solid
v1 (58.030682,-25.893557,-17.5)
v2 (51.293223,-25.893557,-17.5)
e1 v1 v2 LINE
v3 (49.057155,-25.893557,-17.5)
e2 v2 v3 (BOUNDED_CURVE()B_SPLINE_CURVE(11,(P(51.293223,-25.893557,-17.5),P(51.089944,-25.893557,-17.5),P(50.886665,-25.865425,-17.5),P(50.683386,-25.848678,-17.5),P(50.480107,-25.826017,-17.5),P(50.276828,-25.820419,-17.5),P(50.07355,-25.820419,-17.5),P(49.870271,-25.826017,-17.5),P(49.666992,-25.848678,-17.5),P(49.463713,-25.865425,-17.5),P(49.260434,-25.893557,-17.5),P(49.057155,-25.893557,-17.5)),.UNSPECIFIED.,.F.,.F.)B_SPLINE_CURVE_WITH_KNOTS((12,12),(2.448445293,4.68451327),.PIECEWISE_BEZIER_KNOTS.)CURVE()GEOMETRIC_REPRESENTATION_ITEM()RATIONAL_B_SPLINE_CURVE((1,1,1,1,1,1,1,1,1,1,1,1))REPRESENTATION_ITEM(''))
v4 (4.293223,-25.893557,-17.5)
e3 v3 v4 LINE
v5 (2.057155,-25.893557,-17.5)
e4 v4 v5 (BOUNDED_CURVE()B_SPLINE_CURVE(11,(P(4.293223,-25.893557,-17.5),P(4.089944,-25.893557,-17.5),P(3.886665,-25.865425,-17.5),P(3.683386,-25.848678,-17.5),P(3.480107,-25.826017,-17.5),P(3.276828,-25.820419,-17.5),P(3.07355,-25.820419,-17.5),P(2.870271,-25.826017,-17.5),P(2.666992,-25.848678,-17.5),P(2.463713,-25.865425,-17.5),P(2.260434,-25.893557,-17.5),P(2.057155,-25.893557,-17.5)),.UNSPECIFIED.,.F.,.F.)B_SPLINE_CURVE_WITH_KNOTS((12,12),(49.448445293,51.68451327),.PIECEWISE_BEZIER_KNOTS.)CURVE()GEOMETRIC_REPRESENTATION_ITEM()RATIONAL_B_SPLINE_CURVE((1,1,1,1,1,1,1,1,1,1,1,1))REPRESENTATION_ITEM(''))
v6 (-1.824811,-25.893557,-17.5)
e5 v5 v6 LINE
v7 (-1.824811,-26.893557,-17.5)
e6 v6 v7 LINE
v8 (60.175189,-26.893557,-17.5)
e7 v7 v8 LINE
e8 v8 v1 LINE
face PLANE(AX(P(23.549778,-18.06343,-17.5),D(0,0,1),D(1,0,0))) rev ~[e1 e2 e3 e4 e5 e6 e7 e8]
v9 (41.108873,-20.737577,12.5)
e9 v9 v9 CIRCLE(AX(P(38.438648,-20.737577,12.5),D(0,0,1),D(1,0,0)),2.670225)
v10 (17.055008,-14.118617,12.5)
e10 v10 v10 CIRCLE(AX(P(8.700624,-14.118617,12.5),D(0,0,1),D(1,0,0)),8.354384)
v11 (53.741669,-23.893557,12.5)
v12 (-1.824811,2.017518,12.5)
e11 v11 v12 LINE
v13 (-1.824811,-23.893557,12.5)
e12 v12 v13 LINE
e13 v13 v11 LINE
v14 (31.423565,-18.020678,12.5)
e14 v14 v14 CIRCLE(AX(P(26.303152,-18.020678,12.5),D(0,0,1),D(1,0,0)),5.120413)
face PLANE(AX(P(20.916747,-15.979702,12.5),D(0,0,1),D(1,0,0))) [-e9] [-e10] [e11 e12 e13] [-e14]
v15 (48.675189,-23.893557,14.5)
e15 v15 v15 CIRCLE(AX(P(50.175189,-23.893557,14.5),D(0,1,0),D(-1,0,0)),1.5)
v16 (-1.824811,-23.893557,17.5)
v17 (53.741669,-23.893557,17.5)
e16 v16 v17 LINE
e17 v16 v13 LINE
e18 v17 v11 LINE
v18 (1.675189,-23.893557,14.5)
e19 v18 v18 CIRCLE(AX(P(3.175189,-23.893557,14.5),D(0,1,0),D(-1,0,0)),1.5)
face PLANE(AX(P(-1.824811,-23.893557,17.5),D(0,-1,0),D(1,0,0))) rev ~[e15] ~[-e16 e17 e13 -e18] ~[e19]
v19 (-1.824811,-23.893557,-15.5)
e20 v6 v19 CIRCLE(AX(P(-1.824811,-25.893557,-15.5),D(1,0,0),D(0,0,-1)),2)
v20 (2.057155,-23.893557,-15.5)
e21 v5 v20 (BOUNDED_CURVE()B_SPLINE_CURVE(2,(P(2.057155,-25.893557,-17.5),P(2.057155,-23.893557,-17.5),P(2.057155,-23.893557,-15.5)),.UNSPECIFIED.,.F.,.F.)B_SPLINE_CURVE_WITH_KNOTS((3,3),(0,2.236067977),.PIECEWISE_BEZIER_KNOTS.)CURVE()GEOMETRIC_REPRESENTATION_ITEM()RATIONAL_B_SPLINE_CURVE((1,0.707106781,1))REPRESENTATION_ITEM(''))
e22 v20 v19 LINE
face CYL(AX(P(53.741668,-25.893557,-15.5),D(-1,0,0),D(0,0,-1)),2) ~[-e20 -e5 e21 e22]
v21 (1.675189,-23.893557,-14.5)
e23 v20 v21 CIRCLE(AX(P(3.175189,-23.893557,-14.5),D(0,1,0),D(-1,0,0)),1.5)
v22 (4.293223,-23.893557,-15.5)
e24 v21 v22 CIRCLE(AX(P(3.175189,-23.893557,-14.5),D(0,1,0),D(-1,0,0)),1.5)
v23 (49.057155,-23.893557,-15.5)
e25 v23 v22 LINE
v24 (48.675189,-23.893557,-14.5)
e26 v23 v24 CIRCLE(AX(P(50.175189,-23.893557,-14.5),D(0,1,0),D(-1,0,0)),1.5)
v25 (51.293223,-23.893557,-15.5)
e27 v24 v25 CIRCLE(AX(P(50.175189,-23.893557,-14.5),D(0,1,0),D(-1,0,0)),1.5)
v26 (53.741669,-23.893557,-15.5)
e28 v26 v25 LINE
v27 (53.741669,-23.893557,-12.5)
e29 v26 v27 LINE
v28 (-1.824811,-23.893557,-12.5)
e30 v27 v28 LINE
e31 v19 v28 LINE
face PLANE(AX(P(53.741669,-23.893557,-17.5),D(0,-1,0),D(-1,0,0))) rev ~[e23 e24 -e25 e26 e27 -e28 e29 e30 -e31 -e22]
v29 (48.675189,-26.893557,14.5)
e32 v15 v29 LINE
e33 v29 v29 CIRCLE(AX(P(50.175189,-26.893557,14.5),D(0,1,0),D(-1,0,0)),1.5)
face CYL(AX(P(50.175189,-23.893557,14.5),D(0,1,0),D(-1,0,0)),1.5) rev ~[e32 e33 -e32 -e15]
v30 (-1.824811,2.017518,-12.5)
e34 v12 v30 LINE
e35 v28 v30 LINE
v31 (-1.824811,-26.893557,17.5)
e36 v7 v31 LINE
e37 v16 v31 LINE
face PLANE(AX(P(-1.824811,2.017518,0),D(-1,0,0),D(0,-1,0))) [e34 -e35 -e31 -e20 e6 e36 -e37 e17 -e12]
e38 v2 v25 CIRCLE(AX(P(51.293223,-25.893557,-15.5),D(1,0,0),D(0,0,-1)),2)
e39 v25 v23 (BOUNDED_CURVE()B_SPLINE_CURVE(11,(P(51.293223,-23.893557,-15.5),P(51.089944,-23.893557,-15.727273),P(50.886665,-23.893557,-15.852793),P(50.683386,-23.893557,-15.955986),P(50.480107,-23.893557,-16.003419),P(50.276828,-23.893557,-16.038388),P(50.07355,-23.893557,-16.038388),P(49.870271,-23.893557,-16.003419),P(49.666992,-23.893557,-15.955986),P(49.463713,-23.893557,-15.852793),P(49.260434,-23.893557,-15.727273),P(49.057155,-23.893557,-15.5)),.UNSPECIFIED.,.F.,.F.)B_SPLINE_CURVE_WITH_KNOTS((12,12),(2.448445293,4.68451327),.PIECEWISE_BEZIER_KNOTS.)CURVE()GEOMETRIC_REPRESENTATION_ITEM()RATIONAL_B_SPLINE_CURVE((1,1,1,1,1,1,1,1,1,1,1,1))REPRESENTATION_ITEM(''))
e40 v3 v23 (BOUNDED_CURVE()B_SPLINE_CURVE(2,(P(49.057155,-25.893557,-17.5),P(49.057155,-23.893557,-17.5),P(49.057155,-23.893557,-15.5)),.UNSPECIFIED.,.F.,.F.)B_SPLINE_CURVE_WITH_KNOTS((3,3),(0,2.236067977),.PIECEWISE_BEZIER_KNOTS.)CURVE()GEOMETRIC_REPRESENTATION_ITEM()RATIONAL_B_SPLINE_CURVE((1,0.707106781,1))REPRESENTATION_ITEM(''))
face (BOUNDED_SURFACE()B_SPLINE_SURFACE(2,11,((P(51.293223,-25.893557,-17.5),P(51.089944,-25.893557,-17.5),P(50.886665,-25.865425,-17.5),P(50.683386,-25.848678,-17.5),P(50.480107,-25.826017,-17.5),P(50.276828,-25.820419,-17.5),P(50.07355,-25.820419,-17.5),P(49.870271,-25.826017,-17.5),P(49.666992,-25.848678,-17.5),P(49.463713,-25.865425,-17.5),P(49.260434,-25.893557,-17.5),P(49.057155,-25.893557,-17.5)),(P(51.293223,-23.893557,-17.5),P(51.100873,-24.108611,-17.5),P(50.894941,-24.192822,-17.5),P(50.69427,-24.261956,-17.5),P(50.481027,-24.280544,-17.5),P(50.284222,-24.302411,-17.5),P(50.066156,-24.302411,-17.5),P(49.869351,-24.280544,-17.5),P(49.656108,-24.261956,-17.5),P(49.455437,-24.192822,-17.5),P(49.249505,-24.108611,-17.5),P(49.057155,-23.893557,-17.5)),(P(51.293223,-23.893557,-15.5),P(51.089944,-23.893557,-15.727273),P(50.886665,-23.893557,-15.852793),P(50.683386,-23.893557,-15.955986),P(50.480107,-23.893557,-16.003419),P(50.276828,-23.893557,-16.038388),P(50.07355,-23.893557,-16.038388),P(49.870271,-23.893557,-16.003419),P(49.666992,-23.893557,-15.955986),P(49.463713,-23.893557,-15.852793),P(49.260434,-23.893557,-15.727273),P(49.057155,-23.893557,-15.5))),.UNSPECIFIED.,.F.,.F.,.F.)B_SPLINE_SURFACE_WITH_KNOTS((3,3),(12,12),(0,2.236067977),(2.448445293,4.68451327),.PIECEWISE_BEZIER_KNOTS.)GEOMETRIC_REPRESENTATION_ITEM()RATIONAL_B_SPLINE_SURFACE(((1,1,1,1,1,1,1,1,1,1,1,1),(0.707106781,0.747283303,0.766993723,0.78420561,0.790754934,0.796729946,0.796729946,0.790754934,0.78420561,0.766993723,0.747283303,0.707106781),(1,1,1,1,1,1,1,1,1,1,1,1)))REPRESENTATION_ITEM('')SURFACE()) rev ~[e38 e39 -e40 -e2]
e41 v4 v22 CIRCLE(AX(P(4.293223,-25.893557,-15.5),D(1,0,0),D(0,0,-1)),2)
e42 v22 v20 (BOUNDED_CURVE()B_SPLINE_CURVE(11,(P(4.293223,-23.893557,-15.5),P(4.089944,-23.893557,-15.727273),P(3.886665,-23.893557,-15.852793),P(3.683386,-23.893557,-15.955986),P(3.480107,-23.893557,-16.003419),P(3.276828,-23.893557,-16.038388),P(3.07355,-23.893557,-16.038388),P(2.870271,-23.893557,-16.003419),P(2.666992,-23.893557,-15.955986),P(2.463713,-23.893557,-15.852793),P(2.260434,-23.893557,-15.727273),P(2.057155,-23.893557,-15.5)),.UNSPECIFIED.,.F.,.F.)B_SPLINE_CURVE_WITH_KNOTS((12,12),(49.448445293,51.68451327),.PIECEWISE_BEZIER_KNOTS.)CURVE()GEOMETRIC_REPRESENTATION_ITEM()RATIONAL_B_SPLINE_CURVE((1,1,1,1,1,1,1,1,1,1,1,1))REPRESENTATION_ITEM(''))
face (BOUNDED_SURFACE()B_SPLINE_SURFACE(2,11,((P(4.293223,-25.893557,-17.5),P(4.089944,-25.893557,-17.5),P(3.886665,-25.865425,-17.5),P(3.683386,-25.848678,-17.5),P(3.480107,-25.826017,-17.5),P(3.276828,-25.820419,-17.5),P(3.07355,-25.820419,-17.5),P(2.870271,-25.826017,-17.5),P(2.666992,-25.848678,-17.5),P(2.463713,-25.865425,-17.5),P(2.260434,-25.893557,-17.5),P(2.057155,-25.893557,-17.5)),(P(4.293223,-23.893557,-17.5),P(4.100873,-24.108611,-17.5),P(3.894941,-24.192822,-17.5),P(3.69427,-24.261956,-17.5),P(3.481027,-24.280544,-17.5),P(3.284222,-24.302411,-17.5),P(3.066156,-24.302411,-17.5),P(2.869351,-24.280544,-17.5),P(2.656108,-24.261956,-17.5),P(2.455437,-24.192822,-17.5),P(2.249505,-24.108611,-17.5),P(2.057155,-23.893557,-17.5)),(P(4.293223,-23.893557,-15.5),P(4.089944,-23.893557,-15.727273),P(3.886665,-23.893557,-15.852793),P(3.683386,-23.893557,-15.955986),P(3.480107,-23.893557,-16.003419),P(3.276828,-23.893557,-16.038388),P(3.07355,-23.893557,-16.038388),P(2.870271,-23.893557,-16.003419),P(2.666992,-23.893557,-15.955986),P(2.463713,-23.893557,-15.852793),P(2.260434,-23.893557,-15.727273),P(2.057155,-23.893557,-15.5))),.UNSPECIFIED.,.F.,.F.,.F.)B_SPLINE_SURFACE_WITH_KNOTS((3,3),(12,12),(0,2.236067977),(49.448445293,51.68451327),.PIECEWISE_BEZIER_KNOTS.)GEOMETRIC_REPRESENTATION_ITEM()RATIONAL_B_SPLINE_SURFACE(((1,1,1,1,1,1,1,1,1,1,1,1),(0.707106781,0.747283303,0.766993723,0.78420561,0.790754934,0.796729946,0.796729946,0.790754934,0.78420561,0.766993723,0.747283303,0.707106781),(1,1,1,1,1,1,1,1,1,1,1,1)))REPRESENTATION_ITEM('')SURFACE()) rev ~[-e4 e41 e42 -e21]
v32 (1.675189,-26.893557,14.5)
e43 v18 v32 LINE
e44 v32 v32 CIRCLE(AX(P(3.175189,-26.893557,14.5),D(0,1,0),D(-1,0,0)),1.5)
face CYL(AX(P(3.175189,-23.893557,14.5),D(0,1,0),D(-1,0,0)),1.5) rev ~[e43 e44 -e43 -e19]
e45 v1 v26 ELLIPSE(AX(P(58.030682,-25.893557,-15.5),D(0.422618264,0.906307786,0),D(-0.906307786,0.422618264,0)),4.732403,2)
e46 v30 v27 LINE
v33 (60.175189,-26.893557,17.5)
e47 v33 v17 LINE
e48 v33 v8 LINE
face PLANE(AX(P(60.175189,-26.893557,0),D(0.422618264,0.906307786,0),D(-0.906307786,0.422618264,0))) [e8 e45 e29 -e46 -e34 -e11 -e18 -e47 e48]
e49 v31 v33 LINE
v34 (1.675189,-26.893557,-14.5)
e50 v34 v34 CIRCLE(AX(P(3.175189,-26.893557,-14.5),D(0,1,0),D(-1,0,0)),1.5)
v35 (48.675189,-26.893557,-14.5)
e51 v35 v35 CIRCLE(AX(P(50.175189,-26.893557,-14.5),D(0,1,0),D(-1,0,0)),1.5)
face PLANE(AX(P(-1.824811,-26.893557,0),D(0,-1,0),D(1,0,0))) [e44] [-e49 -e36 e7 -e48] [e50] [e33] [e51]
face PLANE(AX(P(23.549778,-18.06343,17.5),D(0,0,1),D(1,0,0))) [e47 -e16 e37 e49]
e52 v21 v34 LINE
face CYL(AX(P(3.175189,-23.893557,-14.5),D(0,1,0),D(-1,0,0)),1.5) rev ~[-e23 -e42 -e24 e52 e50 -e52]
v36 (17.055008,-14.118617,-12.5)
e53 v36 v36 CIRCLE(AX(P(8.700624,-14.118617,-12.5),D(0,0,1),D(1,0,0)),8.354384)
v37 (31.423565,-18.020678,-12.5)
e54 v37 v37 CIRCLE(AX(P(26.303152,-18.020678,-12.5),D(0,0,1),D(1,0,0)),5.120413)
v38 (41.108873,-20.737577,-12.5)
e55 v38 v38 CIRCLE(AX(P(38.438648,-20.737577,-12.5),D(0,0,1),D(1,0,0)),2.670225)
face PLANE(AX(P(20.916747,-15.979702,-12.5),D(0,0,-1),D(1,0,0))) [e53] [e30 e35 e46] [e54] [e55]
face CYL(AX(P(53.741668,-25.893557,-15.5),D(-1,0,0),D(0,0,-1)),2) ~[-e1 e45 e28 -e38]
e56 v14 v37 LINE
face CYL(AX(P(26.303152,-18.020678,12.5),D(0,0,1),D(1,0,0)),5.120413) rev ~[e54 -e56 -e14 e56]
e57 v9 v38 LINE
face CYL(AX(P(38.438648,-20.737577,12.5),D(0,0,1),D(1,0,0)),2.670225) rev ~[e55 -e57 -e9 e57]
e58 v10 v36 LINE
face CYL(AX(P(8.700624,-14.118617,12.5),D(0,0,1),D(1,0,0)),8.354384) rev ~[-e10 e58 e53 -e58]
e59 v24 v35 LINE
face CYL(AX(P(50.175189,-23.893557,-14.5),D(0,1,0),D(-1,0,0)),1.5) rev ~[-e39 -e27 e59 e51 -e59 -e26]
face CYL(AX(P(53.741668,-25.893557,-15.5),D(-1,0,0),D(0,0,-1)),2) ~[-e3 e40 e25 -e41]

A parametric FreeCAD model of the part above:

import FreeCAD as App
import Part
import Sketcher
from FreeCAD import Vector
Q = App.Units.Quantity


def edges_at(feature, points):
    """Names of the edges that pass closest to the given points."""
    edges = feature.Shape.Edges
    near = lambda p: min(range(len(edges)), key=lambda i: edges[i].distToShape(Part.Vertex(*p))[0])
    return sorted({f"Edge{near(p) + 1}" for p in points})

doc = App.newDocument("Part")
body = doc.addObject("PartDesign::Body", "Body")

# Sketch on XY plane
sketch1 = doc.addObject("Sketcher::SketchObject", "Sketch")
body.addObject(sketch1)
sketch1.AttachmentSupport = (doc.XY_Plane, [""])
sketch1.MapMode = "FlatFace"
sketch1.addGeometry([
    Part.LineSegment(Vector(-2, 2, 0), Vector(-2, -27, 0)),
    Part.LineSegment(Vector(-2, -27, 0), Vector(60, -27, 0)),
    Part.LineSegment(Vector(60, -27, 0), Vector(-2, 2, 0)),
], False)
sketch1.addConstraint([
    Sketcher.Constraint("Coincident", 0, 2, 1, 1),
    Sketcher.Constraint("Coincident", 1, 2, 2, 1),
    Sketcher.Constraint("Coincident", 2, 2, 0, 1),
    Sketcher.Constraint("Vertical", 0),
    Sketcher.Constraint("Horizontal", 1),
    Sketcher.Constraint("DistanceX", 1, 1, 1, 2, Q("62 mm")),
    Sketcher.Constraint("Angle", 2, Q("155 deg")),
    Sketcher.Constraint("DistanceX", 0, 2, -1, 1, Q("1.824811 mm")),
    Sketcher.Constraint("DistanceY", 0, 2, -1, 1, Q("26.893557 mm")),
])
pad1 = doc.addObject("PartDesign::Pad", "Pad")
body.addObject(pad1)
pad1.Profile = sketch1
pad1.Length = 35
pad1.Midplane = True

# Sketch on XY plane
sketch2 = doc.addObject("Sketcher::SketchObject", "Sketch001")
body.addObject(sketch2)
sketch2.AttachmentSupport = (doc.XY_Plane, [""])
sketch2.MapMode = "FlatFace"
sketch2.AttachmentOffset = App.Placement(Vector(0, 0, 17.5), App.Rotation())
sketch2.addGeometry([
    Part.LineSegment(Vector(-2, 2, 0), Vector(-2, -24, 0)),
    Part.LineSegment(Vector(-2, -24, 0), Vector(54, -24, 0)),
    Part.LineSegment(Vector(54, -24, 0), Vector(-2, 2, 0)),
], False)
sketch2.addConstraint([
    Sketcher.Constraint("Coincident", 0, 2, 1, 1),
    Sketcher.Constraint("Coincident", 1, 2, 2, 1),
    Sketcher.Constraint("Coincident", 2, 2, 0, 1),
    Sketcher.Constraint("Vertical", 0),
    Sketcher.Constraint("Horizontal", 1),
    Sketcher.Constraint("Angle", 2, Q("155 deg")),
    Sketcher.Constraint("DistanceX", 1, 1, 1, 2, Q("55.56648 mm")),
    Sketcher.Constraint("DistanceX", 0, 2, -1, 1, Q("1.824811 mm")),
    Sketcher.Constraint("DistanceY", 0, 2, -1, 1, Q("23.893557 mm")),
])
pocket1 = doc.addObject("PartDesign::Pocket", "Pocket")
body.addObject(pocket1)
pocket1.Profile = sketch2
pocket1.Length = 5

# Sketch on XY plane
sketch3 = doc.addObject("Sketcher::SketchObject", "Sketch002")
body.addObject(sketch3)
sketch3.AttachmentSupport = (doc.XY_Plane, [""])
sketch3.MapMode = "FlatFace"
sketch3.AttachmentOffset = App.Placement(Vector(0, 0, -17.5), App.Rotation())
sketch3.addGeometry([
    Part.LineSegment(Vector(54, -24, 0), Vector(-2, -24, 0)),
    Part.LineSegment(Vector(-2, -24, 0), Vector(-2, 2, 0)),
    Part.LineSegment(Vector(-2, 2, 0), Vector(54, -24, 0)),
], False)
sketch3.addConstraint([
    Sketcher.Constraint("Coincident", 0, 2, 1, 1),
    Sketcher.Constraint("Coincident", 1, 2, 2, 1),
    Sketcher.Constraint("Coincident", 2, 2, 0, 1),
    Sketcher.Constraint("Horizontal", 0),
    Sketcher.Constraint("Vertical", 1),
    Sketcher.Constraint("Angle", 2, Q("-25 deg")),
    Sketcher.Constraint("DistanceX", 0, 2, 0, 1, Q("55.56648 mm")),
    Sketcher.Constraint("DistanceX", 0, 2, -1, 1, Q("1.824811 mm")),
    Sketcher.Constraint("DistanceY", 0, 2, -1, 1, Q("23.893557 mm")),
])
pocket2 = doc.addObject("PartDesign::Pocket", "Pocket001")
body.addObject(pocket2)
pocket2.Profile = sketch3
pocket2.Length = 5
pocket2.Reversed = True

# Sketch on XZ plane
sketch4 = doc.addObject("Sketcher::SketchObject", "Sketch003")
body.addObject(sketch4)
sketch4.AttachmentSupport = (doc.XZ_Plane, [""])
sketch4.MapMode = "FlatFace"
sketch4.AttachmentOffset = App.Placement(Vector(0, 0, 23.893557), App.Rotation())
sketch4.addGeometry([
    Part.Circle(Vector(50.2, 14.5, 0), Vector(0, 0, 1), 1.5),
    Part.Circle(Vector(3.2, 14.5, 0), Vector(0, 0, 1), 1.5),
    Part.Circle(Vector(50.2, -14.5, 0), Vector(0, 0, 1), 1.5),
    Part.Circle(Vector(3.2, -14.5, 0), Vector(0, 0, 1), 1.5),
], False)
sketch4.addConstraint([
    Sketcher.Constraint("Equal", 0, 1),
    Sketcher.Constraint("Equal", 1, 2),
    Sketcher.Constraint("Equal", 2, 3),
    Sketcher.Constraint("Symmetric", 0, 3, 2, 3, -1),
    Sketcher.Constraint("Symmetric", 1, 3, 3, 3, -1),
    Sketcher.Constraint("Horizontal", 0, 3, 1, 3),
    Sketcher.Constraint("Diameter", 0, Q("3 mm")),
    Sketcher.Constraint("DistanceX", 1, 3, 0, 3, Q("47 mm")),
    Sketcher.Constraint("DistanceY", 2, 3, 0, 3, Q("29 mm")),
    Sketcher.Constraint("DistanceX", -1, 1, 0, 3, Q("50.175189 mm")),
])
pocket3 = doc.addObject("PartDesign::Pocket", "Pocket002")
body.addObject(pocket3)
pocket3.Profile = sketch4
pocket3.Type = "ThroughAll"
pocket3.Reversed = True

# Sketch on XY plane
sketch5 = doc.addObject("Sketcher::SketchObject", "Sketch004")
body.addObject(sketch5)
sketch5.AttachmentSupport = (doc.XY_Plane, [""])
sketch5.MapMode = "FlatFace"
sketch5.AttachmentOffset = App.Placement(Vector(0, 0, 12.5), App.Rotation())
sketch5.addGeometry([
    Part.Circle(Vector(8.7, -14.1, 0), Vector(0, 0, 1), 8.4),
    Part.Circle(Vector(26.3, -18, 0), Vector(0, 0, 1), 5.1),
    Part.Circle(Vector(38.4, -20.7, 0), Vector(0, 0, 1), 2.7),
], False)
sketch5.addConstraint([
    Sketcher.Constraint("Diameter", 2, Q("5.34045 mm")),
    Sketcher.Constraint("Diameter", 0, Q("16.708768 mm")),
    Sketcher.Constraint("Diameter", 1, Q("10.240826 mm")),
    Sketcher.Constraint("DistanceY", 2, 3, 1, 3, Q("2.716899 mm")),
    Sketcher.Constraint("DistanceY", 1, 3, -1, 1, Q("18.020678 mm")),
    Sketcher.Constraint("DistanceY", 1, 3, 0, 3, Q("3.902061 mm")),
    Sketcher.Constraint("DistanceX", -1, 1, 0, 3, Q("8.700624 mm")),
    Sketcher.Constraint("DistanceX", -1, 1, 1, 3, Q("26.303152 mm")),
    Sketcher.Constraint("DistanceX", -1, 1, 2, 3, Q("38.438648 mm")),
])
pocket4 = doc.addObject("PartDesign::Pocket", "Pocket003")
body.addObject(pocket4)
pocket4.Profile = sketch5
pocket4.Type = "ThroughAll"
doc.recompute()

fillet = doc.addObject("PartDesign::Fillet", "Fillet")
body.addObject(fillet)
fillet.Base = (pocket4, edges_at(pocket4, [(25.958, -23.894, -17.5)]))
fillet.Radius = 2

doc.recompute()
